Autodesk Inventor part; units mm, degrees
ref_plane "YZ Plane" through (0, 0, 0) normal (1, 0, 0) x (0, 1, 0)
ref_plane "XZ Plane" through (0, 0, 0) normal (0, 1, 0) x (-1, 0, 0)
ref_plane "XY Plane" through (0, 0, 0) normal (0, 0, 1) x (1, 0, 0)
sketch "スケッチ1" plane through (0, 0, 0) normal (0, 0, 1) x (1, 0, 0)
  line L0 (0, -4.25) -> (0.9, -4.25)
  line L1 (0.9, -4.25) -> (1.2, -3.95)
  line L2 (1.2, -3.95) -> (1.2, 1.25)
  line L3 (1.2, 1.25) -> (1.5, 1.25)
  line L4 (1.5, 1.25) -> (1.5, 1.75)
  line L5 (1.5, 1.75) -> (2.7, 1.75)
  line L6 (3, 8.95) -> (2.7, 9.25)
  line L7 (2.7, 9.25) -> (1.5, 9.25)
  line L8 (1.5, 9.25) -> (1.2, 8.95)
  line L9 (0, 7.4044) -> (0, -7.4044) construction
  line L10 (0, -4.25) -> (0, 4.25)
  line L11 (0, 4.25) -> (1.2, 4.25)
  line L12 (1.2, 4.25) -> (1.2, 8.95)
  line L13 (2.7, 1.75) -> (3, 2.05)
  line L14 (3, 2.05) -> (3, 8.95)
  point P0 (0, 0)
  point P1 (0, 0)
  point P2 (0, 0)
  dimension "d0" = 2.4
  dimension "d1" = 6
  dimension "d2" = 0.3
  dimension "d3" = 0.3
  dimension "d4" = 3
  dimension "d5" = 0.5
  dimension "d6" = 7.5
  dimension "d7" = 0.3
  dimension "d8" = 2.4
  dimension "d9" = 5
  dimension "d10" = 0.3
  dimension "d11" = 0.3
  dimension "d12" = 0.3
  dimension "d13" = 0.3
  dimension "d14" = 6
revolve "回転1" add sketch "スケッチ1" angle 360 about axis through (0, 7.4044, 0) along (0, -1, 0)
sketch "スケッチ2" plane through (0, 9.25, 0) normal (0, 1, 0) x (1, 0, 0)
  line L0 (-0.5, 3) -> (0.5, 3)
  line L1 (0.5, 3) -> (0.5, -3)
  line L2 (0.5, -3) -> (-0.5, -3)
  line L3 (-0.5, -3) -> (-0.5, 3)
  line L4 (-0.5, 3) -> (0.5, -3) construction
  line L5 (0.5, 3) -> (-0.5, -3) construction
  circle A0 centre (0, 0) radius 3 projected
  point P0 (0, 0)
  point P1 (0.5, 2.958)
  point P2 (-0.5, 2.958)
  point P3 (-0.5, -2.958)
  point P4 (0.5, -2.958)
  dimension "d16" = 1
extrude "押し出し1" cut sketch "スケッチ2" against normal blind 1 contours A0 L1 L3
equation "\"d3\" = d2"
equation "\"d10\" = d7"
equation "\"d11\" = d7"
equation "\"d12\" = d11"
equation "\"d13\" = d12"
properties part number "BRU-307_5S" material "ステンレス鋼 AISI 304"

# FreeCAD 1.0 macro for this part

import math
import FreeCAD as App
import Part
import Sketcher
from FreeCAD import Vector
Q = App.Units.Quantity

doc = App.newDocument("Part")
params = doc.addObject("Spreadsheet::Sheet", "Params")
for row, (alias, value) in enumerate([
    ("sketch1_width", "0.3 mm"),
    ("sketch1_height", "0.5 mm"),
    ("revolution_angle", "360 deg"),
    ("sketch2_radius", "3 mm"),
    ("pocket1_length", "1 mm"),
], start=1):
    params.set(f"A{row}", alias)
    params.set(f"B{row}", "=" + value)
    params.setAlias(f"B{row}", alias)

body = doc.addObject("PartDesign::Body", "Body")

sketch1 = body.newObject("Sketcher::SketchObject", "Sketch")
sketch1.AttachmentSupport = (doc.getObject("XY_Plane"), [""])
sketch1.MapMode = "FlatFace"
sketch1.addGeometry([
    Part.LineSegment(Vector(0, 4.25, 0), Vector(0, -4.25, 0)),
    Part.LineSegment(Vector(0, -4.25, 0), Vector(0.9, -4.25, 0)),
    Part.LineSegment(Vector(0.9, -4.25, 0), Vector(1.2, -3.95, 0)),
    Part.LineSegment(Vector(1.2, -3.95, 0), Vector(1.2, 1.25, 0)),
    Part.LineSegment(Vector(1.2, 1.25, 0), Vector(1.5, 1.25, 0)),
    Part.LineSegment(Vector(1.5, 1.25, 0), Vector(1.5, 1.75, 0)),
    Part.LineSegment(Vector(1.5, 1.75, 0), Vector(2.7, 1.75, 0)),
    Part.LineSegment(Vector(2.7, 1.75, 0), Vector(3, 2.05, 0)),
    Part.LineSegment(Vector(3, 2.05, 0), Vector(3, 8.95, 0)),
    Part.LineSegment(Vector(3, 8.95, 0), Vector(2.7, 9.25, 0)),
    Part.LineSegment(Vector(2.7, 9.25, 0), Vector(1.5, 9.25, 0)),
    Part.LineSegment(Vector(1.5, 9.25, 0), Vector(1.2, 8.95, 0)),
    Part.LineSegment(Vector(1.2, 8.95, 0), Vector(1.2, 4.25, 0)),
    Part.LineSegment(Vector(1.2, 4.25, 0), Vector(0, 4.25, 0)),
], False)
sketch1.addConstraint([
    Sketcher.Constraint("Coincident", 0, 2, 1, 1),
    Sketcher.Constraint("Coincident", 1, 2, 2, 1),
    Sketcher.Constraint("Coincident", 2, 2, 3, 1),
    Sketcher.Constraint("Coincident", 3, 2, 4, 1),
    Sketcher.Constraint("Coincident", 4, 2, 5, 1),
    Sketcher.Constraint("Coincident", 5, 2, 6, 1),
    Sketcher.Constraint("Coincident", 6, 2, 7, 1),
    Sketcher.Constraint("Coincident", 7, 2, 8, 1),
    Sketcher.Constraint("Coincident", 8, 2, 9, 1),
    Sketcher.Constraint("Coincident", 9, 2, 10, 1),
    Sketcher.Constraint("Coincident", 10, 2, 11, 1),
    Sketcher.Constraint("Coincident", 11, 2, 12, 1),
    Sketcher.Constraint("Coincident", 12, 2, 13, 1),
    Sketcher.Constraint("Coincident", 13, 2, 0, 1),
    Sketcher.Constraint("Vertical", 0),
    Sketcher.Constraint("Horizontal", 1),
    Sketcher.Constraint("Vertical", 3),
    Sketcher.Constraint("Horizontal", 4),
    Sketcher.Constraint("Vertical", 5),
    Sketcher.Constraint("Horizontal", 6),
    Sketcher.Constraint("Vertical", 8),
    Sketcher.Constraint("Horizontal", 10),
    Sketcher.Constraint("Vertical", 12),
    Sketcher.Constraint("Horizontal", 13),
    Sketcher.Constraint("Symmetric", 0, 2, 13, 2, -1, 1),
    Sketcher.Constraint("Parallel", 2, 7),
    Sketcher.Constraint("Perpendicular", 7, 9),
    Sketcher.Constraint("Perpendicular", 9, 11),
    Sketcher.Constraint("Horizontal", 8, 2, 11, 2),
    Sketcher.Constraint("Vertical", 6, 2, 9, 2),
    Sketcher.Constraint("Vertical", 5, 2, 10, 2),
    Sketcher.Constraint("Vertical", 3, 2, 11, 2),
    Sketcher.Constraint("Equal", 10, 13),
    Sketcher.Constraint("Equal", 2, 7),
    Sketcher.Constraint("Equal", 7, 9),
    Sketcher.Constraint("DistanceX", 4, 1, 4, 2, Q("0.3 mm")),
    Sketcher.Constraint("DistanceY", 5, 1, 5, 2, Q("0.5 mm")),
    Sketcher.Constraint("DistanceX", -1, 1, 7, 2, Q("3 mm")),
    Sketcher.Constraint("DistanceY", 1, 2, 5, 2, Q("6 mm")),
    Sketcher.Constraint("DistanceY", 3, 2, 12, 2, Q("3 mm")),
    Sketcher.Constraint("DistanceY", 6, 2, 9, 2, Q("7.5 mm")),
])
sketch1.setExpression("Constraints[35]", "Params.sketch1_width")
sketch1.setExpression("Constraints[36]", "Params.sketch1_height")
revolution = body.newObject("PartDesign::Revolution", "Revolution")
revolution.Profile = sketch1
revolution.ReferenceAxis = (sketch1, ["V_Axis"])
revolution.setExpression("Angle", "Params.revolution_angle")

sketch2 = body.newObject("Sketcher::SketchObject", "Sketch001")
sketch2.AttachmentSupport = (doc.getObject("XZ_Plane"), [""])
sketch2.MapMode = "FlatFace"
sketch2.AttachmentOffset = App.Placement(Vector(0, 0, -9.25), App.Rotation())
sketch2.addGeometry([
    Part.ArcOfCircle(Part.Circle(Vector(0, 0, 0), Vector(0, 0, 1), 3), math.radians(-99.59), math.radians(-80.41)),
    Part.LineSegment(Vector(-0.5, -3, 0), Vector(-0.5, 3, 0)),
    Part.ArcOfCircle(Part.Circle(Vector(0, 0, 0), Vector(0, 0, 1), 3), math.radians(80.41), math.radians(99.59)),
    Part.LineSegment(Vector(0.5, 3, 0), Vector(0.5, -3, 0)),
], False)
sketch2.addConstraint([
    Sketcher.Constraint("Coincident", 0, 1, 1, 1),
    Sketcher.Constraint("Coincident", 1, 2, 2, 2),
    Sketcher.Constraint("Coincident", 2, 1, 3, 1),
    Sketcher.Constraint("Coincident", 3, 2, 0, 2),
    Sketcher.Constraint("Vertical", 1),
    Sketcher.Constraint("Vertical", 3),
    Sketcher.Constraint("Coincident", 0, 3, -1, 1),
    Sketcher.Constraint("Coincident", 2, 3, -1, 1),
    Sketcher.Constraint("Equal", 0, 2),
    Sketcher.Constraint("Horizontal", 1, 2, 2, 1),
    Sketcher.Constraint("Radius", 0, Q("3 mm")),
    Sketcher.Constraint("DistanceX", 1, 2, 2, 1, Q("1 mm")),
])
sketch2.setExpression("Constraints[10]", "Params.sketch2_radius")
pocket1 = body.newObject("PartDesign::Pocket", "Pocket")
pocket1.Profile = sketch2
pocket1.setExpression("Length", "Params.pocket1_length")
pocket1.Reversed = True

doc.recompute()
